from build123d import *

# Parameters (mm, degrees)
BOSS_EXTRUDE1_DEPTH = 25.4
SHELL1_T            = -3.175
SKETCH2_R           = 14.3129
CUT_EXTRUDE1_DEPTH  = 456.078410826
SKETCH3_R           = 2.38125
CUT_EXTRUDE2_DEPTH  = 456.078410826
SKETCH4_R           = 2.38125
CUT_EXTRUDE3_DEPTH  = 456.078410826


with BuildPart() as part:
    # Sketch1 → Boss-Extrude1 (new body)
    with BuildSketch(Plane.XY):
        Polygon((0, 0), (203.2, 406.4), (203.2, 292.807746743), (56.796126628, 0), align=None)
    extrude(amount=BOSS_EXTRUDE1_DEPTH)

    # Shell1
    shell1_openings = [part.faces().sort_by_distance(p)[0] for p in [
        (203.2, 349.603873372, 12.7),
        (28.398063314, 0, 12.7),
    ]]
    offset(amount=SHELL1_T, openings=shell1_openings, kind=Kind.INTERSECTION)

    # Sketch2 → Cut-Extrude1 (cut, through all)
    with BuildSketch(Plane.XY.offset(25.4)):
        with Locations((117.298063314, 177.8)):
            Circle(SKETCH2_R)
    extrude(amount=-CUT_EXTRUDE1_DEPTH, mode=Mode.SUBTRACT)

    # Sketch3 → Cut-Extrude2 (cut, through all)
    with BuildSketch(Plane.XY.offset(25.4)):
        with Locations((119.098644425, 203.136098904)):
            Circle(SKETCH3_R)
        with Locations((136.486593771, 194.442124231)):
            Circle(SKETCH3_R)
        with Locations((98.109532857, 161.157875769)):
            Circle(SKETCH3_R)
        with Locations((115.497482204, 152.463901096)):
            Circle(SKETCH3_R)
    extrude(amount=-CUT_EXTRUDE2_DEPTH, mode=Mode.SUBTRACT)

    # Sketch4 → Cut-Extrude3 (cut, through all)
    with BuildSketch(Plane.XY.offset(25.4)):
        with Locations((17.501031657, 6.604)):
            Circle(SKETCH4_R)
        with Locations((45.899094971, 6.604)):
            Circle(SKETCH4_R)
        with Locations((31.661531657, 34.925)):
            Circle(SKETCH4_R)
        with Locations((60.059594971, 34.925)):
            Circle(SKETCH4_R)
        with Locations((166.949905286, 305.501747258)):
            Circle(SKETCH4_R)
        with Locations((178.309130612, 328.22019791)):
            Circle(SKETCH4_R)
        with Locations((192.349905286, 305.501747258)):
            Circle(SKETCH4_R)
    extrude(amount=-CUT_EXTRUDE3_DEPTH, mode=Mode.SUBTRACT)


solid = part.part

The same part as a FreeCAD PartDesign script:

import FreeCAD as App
import Part
import Sketcher
from FreeCAD import Vector
Q = App.Units.Quantity


def faces_at(feature, points):
    """Names of the faces that lie closest to the given points."""
    faces = feature.Shape.Faces
    near = lambda p: min(range(len(faces)), key=lambda i: faces[i].distToShape(Part.Vertex(*p))[0])
    return sorted({f"Face{near(p) + 1}" for p in points})

doc = App.newDocument("Part")
params = doc.addObject("Spreadsheet::Sheet", "Params")
for row, (alias, value) in enumerate([
    ("pad1_length", "1 in"),
    ("thickness_wall", "0.125 in"),
    ("sketch2_diameter", "1.127 in"),
    ("sketch3_diameter", "0.1875 in"),
    ("sketch4_diameter", "0.1875 in"),
], start=1):
    params.set(f"A{row}", alias)
    params.set(f"B{row}", "=" + value)
    params.setAlias(f"B{row}", alias)

body = doc.addObject("PartDesign::Body", "Body")

# Sketch on XY plane
sketch1 = doc.addObject("Sketcher::SketchObject", "Sketch")
body.addObject(sketch1)
sketch1.AttachmentSupport = (doc.XY_Plane, [""])
sketch1.MapMode = "FlatFace"
sketch1.addGeometry(Part.LineSegment(Vector(203.2, 406.4, 0), Vector(0, 0, 0)), False)
sketch1.addGeometry(Part.LineSegment(Vector(0, 0, 0), Vector(56.796127, 0, 0)), False)
sketch1.addGeometry(Part.LineSegment(Vector(56.796127, 0, 0), Vector(203.2, 292.807747, 0)), False)
sketch1.addGeometry(Part.LineSegment(Vector(203.2, 292.807747, 0), Vector(203.2, 406.4, 0)), False)
sketch1.addConstraint(Sketcher.Constraint("Coincident", 0, 2, 1, 1))
sketch1.addConstraint(Sketcher.Constraint("Coincident", 1, 2, 2, 1))
sketch1.addConstraint(Sketcher.Constraint("Coincident", 2, 2, 3, 1))
sketch1.addConstraint(Sketcher.Constraint("Coincident", 3, 2, 0, 1))
sketch1.addConstraint(Sketcher.Constraint("Horizontal", 1))
sketch1.addConstraint(Sketcher.Constraint("Vertical", 3))
sketch1.addConstraint(Sketcher.Constraint("Coincident", 0, 2, -1, 1))
sketch1.addConstraint(Sketcher.Constraint("Parallel", 0, 2))
sketch1.addConstraint(Sketcher.Constraint("DistanceX", -1, 1, 2, 2, Q("8 in")))
sketch1.addConstraint(Sketcher.Constraint("DistanceY", -1, 1, 3, 2, Q("16 in")))
sketch1.addConstraint(Sketcher.Constraint("DistanceX", 1, 1, 1, 2, 56.796127))
pad1 = doc.addObject("PartDesign::Pad", "Pad")
body.addObject(pad1)
pad1.Profile = sketch1
pad1.setExpression("Length", "Params.pad1_length")
doc.recompute()

thickness = doc.addObject("PartDesign::Thickness", "Thickness")
body.addObject(thickness)
thickness.Base = (pad1, faces_at(pad1, [(203.2, 349.604, 12.7), (28.398, 0, 12.7)]))
thickness.setExpression("Value", "Params.thickness_wall")
thickness.Reversed = True
thickness.Join = "Intersection"

# Sketch on XY plane
sketch2 = doc.addObject("Sketcher::SketchObject", "Sketch001")
body.addObject(sketch2)
sketch2.AttachmentSupport = (doc.XY_Plane, [""])
sketch2.MapMode = "FlatFace"
sketch2.AttachmentOffset = App.Placement(Vector(0, 0, 1 * 25.4), App.Rotation())
sketch2.addGeometry(Part.Circle(Vector(117.298063, 177.8, 0), Vector(0, 0, 1), 14.3129), False)
sketch2.addConstraint(Sketcher.Constraint("Diameter", 0, Q("1.127 in")))
sketch2.addConstraint(Sketcher.Constraint("DistanceY", -1, 1, 0, 3, Q("7 in")))
sketch2.addConstraint(Sketcher.Constraint("DistanceX", -1, 1, 0, 3, 117.298063))
sketch2.setExpression("Constraints[0]", "Params.sketch2_diameter")
pocket1 = doc.addObject("PartDesign::Pocket", "Pocket")
body.addObject(pocket1)
pocket1.Profile = sketch2
pocket1.Type = "ThroughAll"

# Sketch on XY plane
sketch3 = doc.addObject("Sketcher::SketchObject", "Sketch002")
body.addObject(sketch3)
sketch3.AttachmentSupport = (doc.XY_Plane, [""])
sketch3.MapMode = "FlatFace"
sketch3.AttachmentOffset = App.Placement(Vector(0, 0, 1 * 25.4), App.Rotation())
sketch3.addGeometry(Part.Circle(Vector(119.098644, 203.136099, 0), Vector(0, 0, 1), 2.38125), False)
sketch3.addGeometry(Part.Circle(Vector(136.486594, 194.442124, 0), Vector(0, 0, 1), 2.38125), False)
sketch3.addGeometry(Part.Circle(Vector(98.109533, 161.157876, 0), Vector(0, 0, 1), 2.38125), False)
sketch3.addGeometry(Part.Circle(Vector(115.497482, 152.463901, 0), Vector(0, 0, 1), 2.38125), False)
sketch3.addConstraint(Sketcher.Constraint("Equal", 0, 1))
sketch3.addConstraint(Sketcher.Constraint("Equal", 1, 2))
sketch3.addConstraint(Sketcher.Constraint("Equal", 2, 3))
sketch3.addConstraint(Sketcher.Constraint("Diameter", 0, Q("0.1875 in")))
sketch3.addConstraint(Sketcher.Constraint("DistanceY", -1, 1, 0, 3, 203.136099))
sketch3.addConstraint(Sketcher.Constraint("DistanceY", -1, 1, 3, 3, 152.463901))
sketch3.addConstraint(Sketcher.Constraint("DistanceX", 0, 3, 1, 3, 17.387949))
sketch3.addConstraint(Sketcher.Constraint("DistanceX", 2, 3, 0, 3, 20.989112))
sketch3.addConstraint(Sketcher.Constraint("DistanceY", 2, 3, 1, 3, 33.284248))
sketch3.addConstraint(Sketcher.Constraint("DistanceX", 2, 3, 3, 3, 17.387949))
sketch3.addConstraint(Sketcher.Constraint("DistanceX", -1, 1, 0, 3, 119.098644))
sketch3.addConstraint(Sketcher.Constraint("DistanceY", -1, 1, 1, 3, 194.442124))
sketch3.setExpression("Constraints[3]", "Params.sketch3_diameter")
pocket2 = doc.addObject("PartDesign::Pocket", "Pocket001")
body.addObject(pocket2)
pocket2.Profile = sketch3
pocket2.Type = "ThroughAll"

# Sketch on XY plane
sketch4 = doc.addObject("Sketcher::SketchObject", "Sketch003")
body.addObject(sketch4)
sketch4.AttachmentSupport = (doc.XY_Plane, [""])
sketch4.MapMode = "FlatFace"
sketch4.AttachmentOffset = App.Placement(Vector(0, 0, 1 * 25.4), App.Rotation())
sketch4.addGeometry(Part.Circle(Vector(17.501032, 6.604, 0), Vector(0, 0, 1), 2.38125), False)
sketch4.addGeometry(Part.Circle(Vector(45.899095, 6.604, 0), Vector(0, 0, 1), 2.38125), False)
sketch4.addGeometry(Part.Circle(Vector(31.661532, 34.925, 0), Vector(0, 0, 1), 2.38125), False)
sketch4.addGeometry(Part.Circle(Vector(60.059595, 34.925, 0), Vector(0, 0, 1), 2.38125), False)
sketch4.addGeometry(Part.Circle(Vector(166.949905, 305.501747, 0), Vector(0, 0, 1), 2.38125), False)
sketch4.addGeometry(Part.Circle(Vector(178.309131, 328.220198, 0), Vector(0, 0, 1), 2.38125), False)
sketch4.addGeometry(Part.Circle(Vector(192.349905, 305.501747, 0), Vector(0, 0, 1), 2.38125), False)
sketch4.addConstraint(Sketcher.Constraint("Equal", 0, 1))
sketch4.addConstraint(Sketcher.Constraint("Equal", 1, 2))
sketch4.addConstraint(Sketcher.Constraint("Equal", 2, 3))
sketch4.addConstraint(Sketcher.Constraint("Equal", 3, 4))
sketch4.addConstraint(Sketcher.Constraint("Equal", 4, 5))
sketch4.addConstraint(Sketcher.Constraint("Equal", 5, 6))
sketch4.addConstraint(Sketcher.Constraint("Horizontal", 0, 3, 1, 3))
sketch4.addConstraint(Sketcher.Constraint("Horizontal", 2, 3, 3, 3))
sketch4.addConstraint(Sketcher.Constraint("Horizontal", 4, 3, 6, 3))
sketch4.addConstraint(Sketcher.Constraint("Diameter", 0, Q("0.1875 in")))
sketch4.addConstraint(Sketcher.Constraint("DistanceX", 4, 3, 6, 3, Q("1 in")))
sketch4.addConstraint(Sketcher.Constraint("DistanceY", -1, 1, 0, 3, Q("0.26 in")))
sketch4.addConstraint(Sketcher.Constraint("DistanceY", -1, 1, 2, 3, Q("1.375 in")))
sketch4.addConstraint(Sketcher.Constraint("DistanceX", 0, 3, 2, 3, Q("0.5575 in")))
sketch4.addConstraint(Sketcher.Constraint("DistanceX", 1, 3, 3, 3, Q("0.5575 in")))
sketch4.addConstraint(Sketcher.Constraint("DistanceX", 2, 3, 5, 3, 146.647599))
sketch4.addConstraint(Sketcher.Constraint("DistanceX", -1, 1, 0, 3, 17.501032))
sketch4.addConstraint(Sketcher.Constraint("DistanceX", 3, 3, 4, 3, 106.89031))
sketch4.addConstraint(Sketcher.Constraint("DistanceY", 4, 3, 5, 3, 22.718451))
sketch4.addConstraint(Sketcher.Constraint("DistanceX", -1, 1, 1, 3, 45.899095))
sketch4.addConstraint(Sketcher.Constraint("DistanceY", -1, 1, 4, 3, 305.501747))
sketch4.setExpression("Constraints[9]", "Params.sketch4_diameter")
pocket3 = doc.addObject("PartDesign::Pocket", "Pocket002")
body.addObject(pocket3)
pocket3.Profile = sketch4
pocket3.Type = "ThroughAll"

doc.recompute()
